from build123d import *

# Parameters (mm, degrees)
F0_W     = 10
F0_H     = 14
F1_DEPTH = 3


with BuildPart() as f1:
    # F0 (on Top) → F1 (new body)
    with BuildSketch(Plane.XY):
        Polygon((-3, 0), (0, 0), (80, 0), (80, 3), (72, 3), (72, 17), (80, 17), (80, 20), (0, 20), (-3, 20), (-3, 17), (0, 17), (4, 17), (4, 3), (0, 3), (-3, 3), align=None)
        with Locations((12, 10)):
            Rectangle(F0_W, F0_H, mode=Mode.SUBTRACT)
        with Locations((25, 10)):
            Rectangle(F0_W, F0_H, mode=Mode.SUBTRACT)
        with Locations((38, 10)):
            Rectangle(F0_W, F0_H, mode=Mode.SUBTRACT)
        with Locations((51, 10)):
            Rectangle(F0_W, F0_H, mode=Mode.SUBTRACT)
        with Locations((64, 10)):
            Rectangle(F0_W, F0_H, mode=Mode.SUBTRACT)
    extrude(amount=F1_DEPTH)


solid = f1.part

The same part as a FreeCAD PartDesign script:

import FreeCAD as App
import Part
import Sketcher

V = App.Vector
Q = App.Units.Quantity

doc = App.newDocument("Part")
params = doc.addObject("Spreadsheet::Sheet", "Params")
for row, (alias, value) in enumerate([
    ("sketch1_width", "83 mm"),
    ("sketch1_width2", "8 mm"),
    ("sketch1_width3", "7 mm"),
    ("sketch1_width4", "10 mm"),
    ("sketch1_height", "3 mm"),
    ("pad1_length", "3 mm"),
], start=1):
    params.set(f"A{row}", alias)
    params.set(f"B{row}", "=" + value)
    params.setAlias(f"B{row}", alias)

body = doc.addObject("PartDesign::Body", "Body")

sketch1 = body.newObject("Sketcher::SketchObject", "Sketch")
sketch1.AttachmentSupport = (doc.getObject("XY_Plane"), [""])
sketch1.MapMode = "FlatFace"
sketch1.addGeometry([
    Part.LineSegment(V(-3, 0, 0), V(80, 0, 0)),
    Part.LineSegment(V(80, 0, 0), V(80, 3, 0)),
    Part.LineSegment(V(80, 3, 0), V(72, 3, 0)),
    Part.LineSegment(V(72, 3, 0), V(72, 17, 0)),
    Part.LineSegment(V(72, 17, 0), V(80, 17, 0)),
    Part.LineSegment(V(80, 17, 0), V(80, 20, 0)),
    Part.LineSegment(V(80, 20, 0), V(-3, 20, 0)),
    Part.LineSegment(V(-3, 20, 0), V(-3, 17, 0)),
    Part.LineSegment(V(-3, 17, 0), V(4, 17, 0)),
    Part.LineSegment(V(4, 17, 0), V(4, 3, 0)),
    Part.LineSegment(V(4, 3, 0), V(-3, 3, 0)),
    Part.LineSegment(V(-3, 3, 0), V(-3, 0, 0)),
    Part.LineSegment(V(17, 3, 0), V(7, 3, 0)),
    Part.LineSegment(V(7, 3, 0), V(7, 17, 0)),
    Part.LineSegment(V(7, 17, 0), V(17, 17, 0)),
    Part.LineSegment(V(17, 17, 0), V(17, 3, 0)),
    Part.LineSegment(V(30, 3, 0), V(20, 3, 0)),
    Part.LineSegment(V(20, 3, 0), V(20, 17, 0)),
    Part.LineSegment(V(20, 17, 0), V(30, 17, 0)),
    Part.LineSegment(V(30, 17, 0), V(30, 3, 0)),
    Part.LineSegment(V(43, 3, 0), V(33, 3, 0)),
    Part.LineSegment(V(33, 3, 0), V(33, 17, 0)),
    Part.LineSegment(V(33, 17, 0), V(43, 17, 0)),
    Part.LineSegment(V(43, 17, 0), V(43, 3, 0)),
    Part.LineSegment(V(56, 3, 0), V(46, 3, 0)),
    Part.LineSegment(V(46, 3, 0), V(46, 17, 0)),
    Part.LineSegment(V(46, 17, 0), V(56, 17, 0)),
    Part.LineSegment(V(56, 17, 0), V(56, 3, 0)),
    Part.LineSegment(V(69, 3, 0), V(59, 3, 0)),
    Part.LineSegment(V(59, 3, 0), V(59, 17, 0)),
    Part.LineSegment(V(59, 17, 0), V(69, 17, 0)),
    Part.LineSegment(V(69, 17, 0), V(69, 3, 0)),
], False)
sketch1.addConstraint([
    Sketcher.Constraint("Coincident", 0, 2, 1, 1),
    Sketcher.Constraint("Coincident", 1, 2, 2, 1),
    Sketcher.Constraint("Coincident", 2, 2, 3, 1),
    Sketcher.Constraint("Coincident", 3, 2, 4, 1),
    Sketcher.Constraint("Coincident", 4, 2, 5, 1),
    Sketcher.Constraint("Coincident", 5, 2, 6, 1),
    Sketcher.Constraint("Coincident", 6, 2, 7, 1),
    Sketcher.Constraint("Coincident", 7, 2, 8, 1),
    Sketcher.Constraint("Coincident", 8, 2, 9, 1),
    Sketcher.Constraint("Coincident", 9, 2, 10, 1),
    Sketcher.Constraint("Coincident", 10, 2, 11, 1),
    Sketcher.Constraint("Coincident", 11, 2, 0, 1),
    Sketcher.Constraint("Coincident", 12, 2, 13, 1),
    Sketcher.Constraint("Coincident", 13, 2, 14, 1),
    Sketcher.Constraint("Coincident", 14, 2, 15, 1),
    Sketcher.Constraint("Coincident", 15, 2, 12, 1),
    Sketcher.Constraint("Coincident", 16, 2, 17, 1),
    Sketcher.Constraint("Coincident", 17, 2, 18, 1),
    Sketcher.Constraint("Coincident", 18, 2, 19, 1),
    Sketcher.Constraint("Coincident", 19, 2, 16, 1),
    Sketcher.Constraint("Coincident", 20, 2, 21, 1),
    Sketcher.Constraint("Coincident", 21, 2, 22, 1),
    Sketcher.Constraint("Coincident", 22, 2, 23, 1),
    Sketcher.Constraint("Coincident", 23, 2, 20, 1),
    Sketcher.Constraint("Coincident", 24, 2, 25, 1),
    Sketcher.Constraint("Coincident", 25, 2, 26, 1),
    Sketcher.Constraint("Coincident", 26, 2, 27, 1),
    Sketcher.Constraint("Coincident", 27, 2, 24, 1),
    Sketcher.Constraint("Coincident", 28, 2, 29, 1),
    Sketcher.Constraint("Coincident", 29, 2, 30, 1),
    Sketcher.Constraint("Coincident", 30, 2, 31, 1),
    Sketcher.Constraint("Coincident", 31, 2, 28, 1),
    Sketcher.Constraint("Horizontal", 0),
    Sketcher.Constraint("Vertical", 1),
    Sketcher.Constraint("Horizontal", 2),
    Sketcher.Constraint("Vertical", 3),
    Sketcher.Constraint("Horizontal", 4),
    Sketcher.Constraint("Vertical", 5),
    Sketcher.Constraint("Horizontal", 6),
    Sketcher.Constraint("Vertical", 7),
    Sketcher.Constraint("Horizontal", 8),
    Sketcher.Constraint("Vertical", 9),
    Sketcher.Constraint("Horizontal", 10),
    Sketcher.Constraint("Vertical", 11),
    Sketcher.Constraint("Horizontal", 12),
    Sketcher.Constraint("Vertical", 13),
    Sketcher.Constraint("Horizontal", 14),
    Sketcher.Constraint("Vertical", 15),
    Sketcher.Constraint("Horizontal", 16),
    Sketcher.Constraint("Vertical", 17),
    Sketcher.Constraint("Horizontal", 18),
    Sketcher.Constraint("Vertical", 19),
    Sketcher.Constraint("Horizontal", 20),
    Sketcher.Constraint("Vertical", 21),
    Sketcher.Constraint("Horizontal", 22),
    Sketcher.Constraint("Vertical", 23),
    Sketcher.Constraint("Horizontal", 24),
    Sketcher.Constraint("Vertical", 25),
    Sketcher.Constraint("Horizontal", 26),
    Sketcher.Constraint("Vertical", 27),
    Sketcher.Constraint("Horizontal", 28),
    Sketcher.Constraint("Vertical", 29),
    Sketcher.Constraint("Horizontal", 30),
    Sketcher.Constraint("Vertical", 31),
    Sketcher.Constraint("PointOnObject", 0, 2, -1),
    Sketcher.Constraint("Horizontal", 4, 2, 7, 2),
    Sketcher.Constraint("Horizontal", 2, 2, 9, 2),
    Sketcher.Constraint("Horizontal", 10, 2, 12, 2),
    Sketcher.Constraint("Horizontal", 8, 2, 13, 2),
    Sketcher.Constraint("Horizontal", 15, 2, 16, 2),
    Sketcher.Constraint("Horizontal", 14, 2, 17, 2),
    Sketcher.Constraint("Horizontal", 19, 2, 20, 2),
    Sketcher.Constraint("Horizontal", 18, 2, 21, 2),
    Sketcher.Constraint("Horizontal", 23, 2, 24, 2),
    Sketcher.Constraint("Horizontal", 22, 2, 25, 2),
    Sketcher.Constraint("Horizontal", 27, 2, 28, 2),
    Sketcher.Constraint("Horizontal", 26, 2, 29, 2),
    Sketcher.Constraint("Vertical", 1, 2, 4, 2),
    Sketcher.Constraint("Vertical", 7, 2, 10, 2),
    Sketcher.Constraint("Equal", 14, 16),
    Sketcher.Constraint("Equal", 18, 20),
    Sketcher.Constraint("Equal", 22, 24),
    Sketcher.Constraint("Equal", 26, 28),
    Sketcher.Constraint("Equal", 1, 5),
    Sketcher.Constraint("DistanceX", 0, 1, 0, 2, Q("83 mm")),
    Sketcher.Constraint("DistanceX", 2, 2, 2, 1, Q("8 mm")),
    Sketcher.Constraint("DistanceX", 8, 1, 8, 2, Q("7 mm")),
    Sketcher.Constraint("DistanceX", 12, 2, 12, 1, Q("10 mm")),
    Sketcher.Constraint("DistanceY", 1, 1, 1, 2, Q("3 mm")),
    Sketcher.Constraint("DistanceY", 3, 1, 3, 2, Q("14 mm")),
    Sketcher.Constraint("DistanceX", -1, 1, 0, 2, Q("80 mm")),
    Sketcher.Constraint("DistanceX", -1, 1, 12, 2, Q("7 mm")),
    Sketcher.Constraint("DistanceX", -1, 1, 16, 2, Q("20 mm")),
    Sketcher.Constraint("DistanceX", -1, 1, 20, 2, Q("33 mm")),
    Sketcher.Constraint("DistanceX", -1, 1, 24, 2, Q("46 mm")),
    Sketcher.Constraint("DistanceX", -1, 1, 28, 2, Q("59 mm")),
])
sketch1.setExpression("Constraints[84]", "Params.sketch1_width")
sketch1.setExpression("Constraints[85]", "Params.sketch1_width2")
sketch1.setExpression("Constraints[86]", "Params.sketch1_width3")
sketch1.setExpression("Constraints[87]", "Params.sketch1_width4")
sketch1.setExpression("Constraints[88]", "Params.sketch1_height")
pad1 = body.newObject("PartDesign::Pad", "Pad")
pad1.Profile = sketch1
pad1.setExpression("Length", "Params.pad1_length")

doc.recompute()
